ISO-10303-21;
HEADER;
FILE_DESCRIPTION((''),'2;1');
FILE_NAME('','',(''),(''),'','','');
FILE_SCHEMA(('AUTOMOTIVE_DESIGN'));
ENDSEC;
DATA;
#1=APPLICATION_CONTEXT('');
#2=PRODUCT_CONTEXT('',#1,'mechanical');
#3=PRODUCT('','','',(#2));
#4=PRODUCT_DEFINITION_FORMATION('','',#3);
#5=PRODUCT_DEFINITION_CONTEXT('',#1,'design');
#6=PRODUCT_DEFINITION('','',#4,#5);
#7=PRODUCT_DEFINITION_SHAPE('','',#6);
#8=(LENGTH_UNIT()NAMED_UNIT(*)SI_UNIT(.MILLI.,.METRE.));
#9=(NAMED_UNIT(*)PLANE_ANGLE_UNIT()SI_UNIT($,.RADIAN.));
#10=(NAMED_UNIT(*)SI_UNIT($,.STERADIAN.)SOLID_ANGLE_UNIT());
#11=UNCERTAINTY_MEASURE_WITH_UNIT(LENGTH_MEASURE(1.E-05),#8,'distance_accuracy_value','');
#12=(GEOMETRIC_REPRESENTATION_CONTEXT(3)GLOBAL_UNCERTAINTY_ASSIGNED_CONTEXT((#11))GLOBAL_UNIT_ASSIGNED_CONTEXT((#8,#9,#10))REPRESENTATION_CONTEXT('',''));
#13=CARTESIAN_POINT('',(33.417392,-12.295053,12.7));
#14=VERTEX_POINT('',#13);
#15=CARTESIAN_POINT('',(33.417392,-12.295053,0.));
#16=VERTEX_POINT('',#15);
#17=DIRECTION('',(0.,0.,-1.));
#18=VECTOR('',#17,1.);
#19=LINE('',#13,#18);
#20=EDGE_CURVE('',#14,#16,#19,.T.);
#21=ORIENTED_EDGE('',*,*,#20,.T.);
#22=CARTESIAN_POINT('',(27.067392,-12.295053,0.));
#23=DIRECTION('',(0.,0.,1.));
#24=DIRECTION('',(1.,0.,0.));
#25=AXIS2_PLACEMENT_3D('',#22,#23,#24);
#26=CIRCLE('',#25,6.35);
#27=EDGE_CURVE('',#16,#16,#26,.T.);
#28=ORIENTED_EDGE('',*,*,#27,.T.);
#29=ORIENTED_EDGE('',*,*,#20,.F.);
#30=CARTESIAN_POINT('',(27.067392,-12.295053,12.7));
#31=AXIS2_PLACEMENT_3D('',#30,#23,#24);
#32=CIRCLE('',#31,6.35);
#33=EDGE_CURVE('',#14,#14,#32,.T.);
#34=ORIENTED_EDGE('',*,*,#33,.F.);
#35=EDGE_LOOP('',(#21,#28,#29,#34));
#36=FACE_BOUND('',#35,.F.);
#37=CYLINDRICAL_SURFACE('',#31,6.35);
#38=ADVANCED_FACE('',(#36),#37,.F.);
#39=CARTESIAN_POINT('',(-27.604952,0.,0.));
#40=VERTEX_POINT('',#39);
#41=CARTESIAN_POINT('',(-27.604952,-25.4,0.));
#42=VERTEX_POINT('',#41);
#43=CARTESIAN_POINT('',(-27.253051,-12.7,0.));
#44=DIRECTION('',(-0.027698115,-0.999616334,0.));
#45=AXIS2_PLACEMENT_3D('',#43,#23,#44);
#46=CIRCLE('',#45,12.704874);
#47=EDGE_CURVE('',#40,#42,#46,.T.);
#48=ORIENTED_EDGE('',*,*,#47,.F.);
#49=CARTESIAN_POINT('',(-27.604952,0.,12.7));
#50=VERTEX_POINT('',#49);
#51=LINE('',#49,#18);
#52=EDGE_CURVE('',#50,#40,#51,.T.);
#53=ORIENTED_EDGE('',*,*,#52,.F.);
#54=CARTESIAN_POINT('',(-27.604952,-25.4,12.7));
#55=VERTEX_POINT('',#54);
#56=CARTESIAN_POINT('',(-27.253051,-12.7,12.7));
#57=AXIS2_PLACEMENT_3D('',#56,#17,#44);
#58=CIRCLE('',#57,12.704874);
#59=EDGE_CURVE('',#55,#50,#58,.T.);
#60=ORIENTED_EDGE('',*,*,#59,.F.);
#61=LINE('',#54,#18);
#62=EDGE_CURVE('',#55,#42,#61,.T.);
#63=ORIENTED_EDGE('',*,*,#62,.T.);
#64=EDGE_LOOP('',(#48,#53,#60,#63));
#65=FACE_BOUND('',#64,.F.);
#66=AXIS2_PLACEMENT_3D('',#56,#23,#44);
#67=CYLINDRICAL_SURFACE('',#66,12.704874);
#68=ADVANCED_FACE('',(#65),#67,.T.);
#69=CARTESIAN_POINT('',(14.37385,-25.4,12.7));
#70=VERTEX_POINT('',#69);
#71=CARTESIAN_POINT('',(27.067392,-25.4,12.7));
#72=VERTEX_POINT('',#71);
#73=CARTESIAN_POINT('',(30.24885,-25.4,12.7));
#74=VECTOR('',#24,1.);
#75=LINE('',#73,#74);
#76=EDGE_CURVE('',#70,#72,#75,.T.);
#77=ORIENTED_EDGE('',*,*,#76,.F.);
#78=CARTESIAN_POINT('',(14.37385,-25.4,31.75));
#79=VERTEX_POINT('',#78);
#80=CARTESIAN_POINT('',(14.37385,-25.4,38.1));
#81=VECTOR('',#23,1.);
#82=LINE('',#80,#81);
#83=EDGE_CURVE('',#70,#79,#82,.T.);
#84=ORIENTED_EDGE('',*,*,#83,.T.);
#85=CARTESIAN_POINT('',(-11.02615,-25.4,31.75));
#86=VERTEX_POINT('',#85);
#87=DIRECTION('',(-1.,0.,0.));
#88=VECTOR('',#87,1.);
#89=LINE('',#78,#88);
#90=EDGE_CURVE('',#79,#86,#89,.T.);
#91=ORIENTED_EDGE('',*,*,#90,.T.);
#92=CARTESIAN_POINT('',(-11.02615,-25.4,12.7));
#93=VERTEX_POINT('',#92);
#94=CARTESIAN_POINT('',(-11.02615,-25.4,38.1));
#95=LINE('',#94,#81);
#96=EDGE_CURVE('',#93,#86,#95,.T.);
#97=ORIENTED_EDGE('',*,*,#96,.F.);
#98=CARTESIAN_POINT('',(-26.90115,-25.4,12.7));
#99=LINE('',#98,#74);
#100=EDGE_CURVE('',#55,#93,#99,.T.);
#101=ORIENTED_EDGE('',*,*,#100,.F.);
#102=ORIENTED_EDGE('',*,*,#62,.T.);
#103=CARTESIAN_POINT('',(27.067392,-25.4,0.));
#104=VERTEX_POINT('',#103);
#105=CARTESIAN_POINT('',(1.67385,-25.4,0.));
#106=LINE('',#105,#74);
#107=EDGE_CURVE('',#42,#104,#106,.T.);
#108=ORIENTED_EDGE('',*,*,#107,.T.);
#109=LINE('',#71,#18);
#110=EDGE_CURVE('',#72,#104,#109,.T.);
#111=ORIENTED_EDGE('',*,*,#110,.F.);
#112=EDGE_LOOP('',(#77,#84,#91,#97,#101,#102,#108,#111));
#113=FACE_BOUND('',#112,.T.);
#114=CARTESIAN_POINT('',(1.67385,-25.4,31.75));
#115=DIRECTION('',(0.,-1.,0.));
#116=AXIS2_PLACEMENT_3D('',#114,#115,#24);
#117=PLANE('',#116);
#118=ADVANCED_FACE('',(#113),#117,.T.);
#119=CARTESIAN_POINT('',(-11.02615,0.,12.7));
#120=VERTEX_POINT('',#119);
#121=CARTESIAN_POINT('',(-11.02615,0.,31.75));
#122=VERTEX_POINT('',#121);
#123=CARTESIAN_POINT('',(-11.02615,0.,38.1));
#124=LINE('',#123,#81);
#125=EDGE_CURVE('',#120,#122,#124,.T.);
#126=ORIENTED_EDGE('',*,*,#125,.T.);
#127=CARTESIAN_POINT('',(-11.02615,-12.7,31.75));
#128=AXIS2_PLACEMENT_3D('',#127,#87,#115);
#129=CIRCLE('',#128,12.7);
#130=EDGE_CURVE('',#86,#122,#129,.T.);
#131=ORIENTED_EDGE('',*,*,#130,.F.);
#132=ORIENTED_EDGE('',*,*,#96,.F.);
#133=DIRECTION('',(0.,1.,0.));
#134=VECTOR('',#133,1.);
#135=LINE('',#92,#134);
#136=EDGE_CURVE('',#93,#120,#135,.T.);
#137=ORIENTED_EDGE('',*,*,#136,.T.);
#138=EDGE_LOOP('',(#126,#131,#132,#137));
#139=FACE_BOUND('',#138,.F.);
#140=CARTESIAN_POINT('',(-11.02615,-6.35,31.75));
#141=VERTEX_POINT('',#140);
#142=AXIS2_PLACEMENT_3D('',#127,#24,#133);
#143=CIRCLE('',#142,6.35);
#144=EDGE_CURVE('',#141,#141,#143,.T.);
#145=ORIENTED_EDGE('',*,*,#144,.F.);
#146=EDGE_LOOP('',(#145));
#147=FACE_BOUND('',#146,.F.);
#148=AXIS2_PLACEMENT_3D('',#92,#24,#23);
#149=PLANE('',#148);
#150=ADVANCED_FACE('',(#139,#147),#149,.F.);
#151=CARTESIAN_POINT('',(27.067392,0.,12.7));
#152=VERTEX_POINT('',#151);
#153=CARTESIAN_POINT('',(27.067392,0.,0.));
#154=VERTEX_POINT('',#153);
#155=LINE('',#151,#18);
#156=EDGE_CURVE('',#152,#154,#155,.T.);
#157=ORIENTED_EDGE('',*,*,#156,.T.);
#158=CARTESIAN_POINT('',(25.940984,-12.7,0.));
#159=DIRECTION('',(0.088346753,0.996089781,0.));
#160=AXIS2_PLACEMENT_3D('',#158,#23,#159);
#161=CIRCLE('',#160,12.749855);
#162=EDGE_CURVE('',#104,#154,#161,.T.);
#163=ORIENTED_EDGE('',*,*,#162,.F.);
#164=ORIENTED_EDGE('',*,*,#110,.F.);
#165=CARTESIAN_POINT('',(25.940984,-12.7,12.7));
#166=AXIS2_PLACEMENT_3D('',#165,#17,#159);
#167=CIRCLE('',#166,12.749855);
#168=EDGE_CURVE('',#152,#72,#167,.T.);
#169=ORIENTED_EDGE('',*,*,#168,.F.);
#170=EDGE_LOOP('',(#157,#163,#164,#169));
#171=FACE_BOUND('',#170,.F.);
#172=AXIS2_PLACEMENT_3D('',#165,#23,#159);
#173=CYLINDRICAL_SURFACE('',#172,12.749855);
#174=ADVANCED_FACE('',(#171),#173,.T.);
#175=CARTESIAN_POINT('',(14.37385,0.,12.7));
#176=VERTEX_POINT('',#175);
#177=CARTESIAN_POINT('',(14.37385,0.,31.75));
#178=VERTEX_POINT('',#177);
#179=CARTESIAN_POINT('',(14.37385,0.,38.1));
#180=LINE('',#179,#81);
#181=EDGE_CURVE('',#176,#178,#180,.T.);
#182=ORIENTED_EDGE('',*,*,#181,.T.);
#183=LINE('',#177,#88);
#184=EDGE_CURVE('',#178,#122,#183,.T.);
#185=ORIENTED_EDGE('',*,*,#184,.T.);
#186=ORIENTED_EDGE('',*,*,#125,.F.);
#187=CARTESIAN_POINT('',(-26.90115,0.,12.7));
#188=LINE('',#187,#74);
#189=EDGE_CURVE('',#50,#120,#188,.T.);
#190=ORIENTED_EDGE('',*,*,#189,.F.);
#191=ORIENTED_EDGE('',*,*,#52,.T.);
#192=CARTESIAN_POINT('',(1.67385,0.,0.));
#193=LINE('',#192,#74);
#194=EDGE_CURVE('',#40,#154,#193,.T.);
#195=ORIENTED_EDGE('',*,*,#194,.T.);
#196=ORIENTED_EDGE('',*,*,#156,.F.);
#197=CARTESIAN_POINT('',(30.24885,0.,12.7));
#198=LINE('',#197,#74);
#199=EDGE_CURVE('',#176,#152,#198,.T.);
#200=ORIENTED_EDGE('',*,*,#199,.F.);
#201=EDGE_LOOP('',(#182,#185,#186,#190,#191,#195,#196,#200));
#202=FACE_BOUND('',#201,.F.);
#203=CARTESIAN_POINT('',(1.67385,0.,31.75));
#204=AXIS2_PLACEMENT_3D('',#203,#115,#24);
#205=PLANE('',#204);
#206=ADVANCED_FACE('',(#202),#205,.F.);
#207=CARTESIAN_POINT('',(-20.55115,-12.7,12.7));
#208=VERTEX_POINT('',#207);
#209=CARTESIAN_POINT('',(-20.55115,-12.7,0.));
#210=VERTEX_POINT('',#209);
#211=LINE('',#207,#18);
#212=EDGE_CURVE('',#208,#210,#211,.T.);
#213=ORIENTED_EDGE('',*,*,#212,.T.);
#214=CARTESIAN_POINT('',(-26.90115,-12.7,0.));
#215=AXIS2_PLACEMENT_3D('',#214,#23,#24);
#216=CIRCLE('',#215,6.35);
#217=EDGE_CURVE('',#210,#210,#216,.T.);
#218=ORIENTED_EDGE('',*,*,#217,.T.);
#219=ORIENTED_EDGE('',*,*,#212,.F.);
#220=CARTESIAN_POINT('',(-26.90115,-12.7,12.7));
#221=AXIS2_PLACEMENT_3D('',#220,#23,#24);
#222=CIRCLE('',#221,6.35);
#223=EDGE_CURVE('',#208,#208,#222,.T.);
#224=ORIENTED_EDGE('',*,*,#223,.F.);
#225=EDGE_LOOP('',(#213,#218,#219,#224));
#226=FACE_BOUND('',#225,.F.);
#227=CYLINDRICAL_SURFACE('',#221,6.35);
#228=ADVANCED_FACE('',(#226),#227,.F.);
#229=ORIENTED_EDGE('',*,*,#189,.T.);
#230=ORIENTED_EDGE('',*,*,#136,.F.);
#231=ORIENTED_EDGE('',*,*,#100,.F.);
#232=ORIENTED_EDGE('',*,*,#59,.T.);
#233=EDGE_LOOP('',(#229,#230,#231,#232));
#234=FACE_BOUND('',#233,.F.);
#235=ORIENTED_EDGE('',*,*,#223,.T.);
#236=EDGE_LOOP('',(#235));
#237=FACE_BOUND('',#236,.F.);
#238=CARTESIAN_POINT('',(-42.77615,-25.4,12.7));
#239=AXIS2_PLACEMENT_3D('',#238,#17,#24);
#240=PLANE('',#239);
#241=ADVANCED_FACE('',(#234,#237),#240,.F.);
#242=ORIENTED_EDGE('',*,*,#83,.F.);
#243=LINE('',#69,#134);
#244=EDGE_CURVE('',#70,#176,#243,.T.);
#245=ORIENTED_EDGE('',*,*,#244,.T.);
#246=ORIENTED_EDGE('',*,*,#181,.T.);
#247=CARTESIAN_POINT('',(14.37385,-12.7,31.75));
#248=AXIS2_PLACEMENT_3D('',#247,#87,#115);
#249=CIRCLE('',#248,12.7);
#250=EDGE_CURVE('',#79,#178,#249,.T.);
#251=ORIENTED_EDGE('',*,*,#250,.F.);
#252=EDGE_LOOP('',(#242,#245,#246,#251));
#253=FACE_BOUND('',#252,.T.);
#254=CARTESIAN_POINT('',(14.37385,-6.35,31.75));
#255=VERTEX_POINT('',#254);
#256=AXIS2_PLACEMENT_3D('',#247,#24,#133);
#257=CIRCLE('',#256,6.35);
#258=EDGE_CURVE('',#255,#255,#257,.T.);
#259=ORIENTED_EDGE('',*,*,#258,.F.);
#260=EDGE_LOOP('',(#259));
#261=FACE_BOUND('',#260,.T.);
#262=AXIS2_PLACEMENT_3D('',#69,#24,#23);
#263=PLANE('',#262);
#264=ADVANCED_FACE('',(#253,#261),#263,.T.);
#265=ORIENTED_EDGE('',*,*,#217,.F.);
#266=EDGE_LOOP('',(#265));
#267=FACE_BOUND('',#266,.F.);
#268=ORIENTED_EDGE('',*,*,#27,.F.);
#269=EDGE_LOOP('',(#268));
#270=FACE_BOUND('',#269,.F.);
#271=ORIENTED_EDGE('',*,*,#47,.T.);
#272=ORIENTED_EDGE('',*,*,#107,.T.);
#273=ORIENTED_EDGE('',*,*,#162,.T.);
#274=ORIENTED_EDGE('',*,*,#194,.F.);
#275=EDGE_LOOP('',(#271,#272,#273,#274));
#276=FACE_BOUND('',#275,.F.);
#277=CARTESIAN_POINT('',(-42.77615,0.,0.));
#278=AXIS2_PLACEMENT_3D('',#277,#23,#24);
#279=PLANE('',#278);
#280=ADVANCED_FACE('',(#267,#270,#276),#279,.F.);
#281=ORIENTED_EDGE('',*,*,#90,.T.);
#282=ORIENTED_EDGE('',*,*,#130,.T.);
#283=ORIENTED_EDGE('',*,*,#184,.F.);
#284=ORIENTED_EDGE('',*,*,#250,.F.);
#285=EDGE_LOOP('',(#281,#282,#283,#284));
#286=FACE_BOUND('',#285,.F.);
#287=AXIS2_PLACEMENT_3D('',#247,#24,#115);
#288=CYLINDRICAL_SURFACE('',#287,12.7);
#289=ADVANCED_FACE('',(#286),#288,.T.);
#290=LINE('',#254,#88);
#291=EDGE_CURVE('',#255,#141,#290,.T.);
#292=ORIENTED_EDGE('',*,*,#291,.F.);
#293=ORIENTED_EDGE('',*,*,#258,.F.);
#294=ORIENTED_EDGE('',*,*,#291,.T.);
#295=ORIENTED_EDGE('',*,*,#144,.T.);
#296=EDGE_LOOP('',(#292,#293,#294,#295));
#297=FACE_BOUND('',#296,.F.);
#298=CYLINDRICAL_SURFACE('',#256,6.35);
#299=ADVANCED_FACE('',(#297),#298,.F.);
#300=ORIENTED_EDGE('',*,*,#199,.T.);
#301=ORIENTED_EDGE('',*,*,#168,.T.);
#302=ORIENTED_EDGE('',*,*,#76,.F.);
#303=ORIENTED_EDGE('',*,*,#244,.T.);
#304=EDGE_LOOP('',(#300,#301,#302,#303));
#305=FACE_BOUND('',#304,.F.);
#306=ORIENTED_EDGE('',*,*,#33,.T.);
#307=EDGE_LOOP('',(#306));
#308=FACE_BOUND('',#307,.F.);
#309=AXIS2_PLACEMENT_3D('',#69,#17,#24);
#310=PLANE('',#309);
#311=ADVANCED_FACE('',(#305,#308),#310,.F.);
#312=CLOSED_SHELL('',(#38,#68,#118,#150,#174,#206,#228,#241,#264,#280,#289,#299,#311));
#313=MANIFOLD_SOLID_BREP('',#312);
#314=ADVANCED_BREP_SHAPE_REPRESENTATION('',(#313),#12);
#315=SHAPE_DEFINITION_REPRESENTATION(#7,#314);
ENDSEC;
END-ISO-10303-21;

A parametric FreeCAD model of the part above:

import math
import FreeCAD as App
import Part
import Sketcher

V = App.Vector
Q = App.Units.Quantity

doc = App.newDocument("Part")
body = doc.addObject("PartDesign::Body", "Body")

# Sketch on XZ plane
sketch1 = doc.addObject("Sketcher::SketchObject", "Sketch")
body.addObject(sketch1)
sketch1.AttachmentSupport = (doc.XZ_Plane, [""])
sketch1.MapMode = "FlatFace"
sketch1.addGeometry([
    Part.LineSegment(V(-43, 64, 0), V(-43, 0, 0)),
    Part.LineSegment(V(-43, 0, 0), V(46, 0, 0)),
    Part.LineSegment(V(46, 0, 0), V(46, 64, 0)),
    Part.LineSegment(V(46, 64, 0), V(-43, 64, 0)),
], False)
sketch1.addConstraint([
    Sketcher.Constraint("Coincident", 0, 2, 1, 1),
    Sketcher.Constraint("Coincident", 1, 2, 2, 1),
    Sketcher.Constraint("Coincident", 2, 2, 3, 1),
    Sketcher.Constraint("Coincident", 3, 2, 0, 1),
    Sketcher.Constraint("Vertical", 0),
    Sketcher.Constraint("Horizontal", 1),
    Sketcher.Constraint("Vertical", 2),
    Sketcher.Constraint("Horizontal", 3),
    Sketcher.Constraint("PointOnObject", 0, 2, -1),
    Sketcher.Constraint("DistanceX", 1, 1, 1, 2, Q("3.5 in")),
    Sketcher.Constraint("DistanceY", 0, 2, 0, 1, Q("2.5 in")),
    Sketcher.Constraint("DistanceX", 0, 2, -1, 1, Q("42.77615 mm")),
])
pad1 = doc.addObject("PartDesign::Pad", "Pad")
body.addObject(pad1)
pad1.Profile = sketch1
pad1.Length = Q("1 in")

# Sketch on XZ plane
sketch2 = doc.addObject("Sketcher::SketchObject", "Sketch001")
body.addObject(sketch2)
sketch2.AttachmentSupport = (doc.XZ_Plane, [""])
sketch2.MapMode = "FlatFace"
sketch2.AttachmentOffset = App.Placement(V(0, 0, 1 * 25.4), App.Rotation())
sketch2.addGeometry([
    Part.LineSegment(V(-43, 64, 0), V(-43, 13, 0)),  # 0
    Part.LineSegment(V(-43, 13, 0), V(-11, 13, 0)),  # 1
    Part.LineSegment(V(-11, 13, 0), V(-11, 64, 0)),  # 2
    Part.LineSegment(V(-11, 64, 0), V(-43, 64, 0)),  # 3
    Part.LineSegment(V(14, 64, 0), V(14, 13, 0)),  # 4
    Part.LineSegment(V(14, 13, 0), V(46, 13, 0)),  # 5
    Part.LineSegment(V(46, 13, 0), V(46, 64, 0)),  # 6
    Part.LineSegment(V(46, 64, 0), V(14, 64, 0)),  # 7
], False)
sketch2.addConstraint([
    Sketcher.Constraint("Coincident", 0, 2, 1, 1),
    Sketcher.Constraint("Coincident", 1, 2, 2, 1),
    Sketcher.Constraint("Coincident", 2, 2, 3, 1),
    Sketcher.Constraint("Coincident", 3, 2, 0, 1),
    Sketcher.Constraint("Coincident", 4, 2, 5, 1),
    Sketcher.Constraint("Coincident", 5, 2, 6, 1),
    Sketcher.Constraint("Coincident", 6, 2, 7, 1),
    Sketcher.Constraint("Coincident", 7, 2, 4, 1),
    Sketcher.Constraint("Vertical", 0),
    Sketcher.Constraint("Horizontal", 1),
    Sketcher.Constraint("Vertical", 2),
    Sketcher.Constraint("Horizontal", 3),
    Sketcher.Constraint("Vertical", 4),
    Sketcher.Constraint("Horizontal", 5),
    Sketcher.Constraint("Vertical", 6),
    Sketcher.Constraint("Horizontal", 7),
    Sketcher.Constraint("Horizontal", 1, 2, 4, 2),
    Sketcher.Constraint("Horizontal", 3, 2, 6, 2),
    Sketcher.Constraint("Equal", 3, 5),
    Sketcher.Constraint("DistanceY", 0, 2, 0, 1, Q("2 in")),
    Sketcher.Constraint("DistanceX", 1, 2, 4, 2, Q("1 in")),
    Sketcher.Constraint("DistanceX", 1, 1, 1, 2, Q("1.25 in")),
    Sketcher.Constraint("DistanceY", -1, 1, 0, 2, Q("0.5 in")),
    Sketcher.Constraint("DistanceX", 0, 2, -1, 1, Q("42.77615 mm")),
])
pocket1 = doc.addObject("PartDesign::Pocket", "Pocket")
body.addObject(pocket1)
pocket1.Profile = sketch2
pocket1.Length = Q("1 in")

# Sketch on YZ plane
sketch3 = doc.addObject("Sketcher::SketchObject", "Sketch002")
body.addObject(sketch3)
sketch3.AttachmentSupport = (doc.YZ_Plane, [""])
sketch3.MapMode = "FlatFace"
sketch3.AttachmentOffset = App.Placement(V(0, 0, 14.37385), App.Rotation())
sketch3.addGeometry([
    Part.ArcOfCircle(Part.Circle(V(-13, 32, 0), V(0, 0, 1), 13), math.radians(0), math.radians(180)),  # 0
    Part.LineSegment(V(0, 32, 0), V(0, 64, 0)),  # 1
    Part.LineSegment(V(0, 64, 0), V(-25, 64, 0)),  # 2
    Part.LineSegment(V(-25, 64, 0), V(-25, 32, 0)),  # 3
    Part.Circle(V(-13, 32, 0), V(0, 0, 1), 6),  # 4
], False)
sketch3.addConstraint([
    Sketcher.Constraint("Tangent", 0, 1, 1, 1),
    Sketcher.Constraint("Coincident", 1, 2, 2, 1),
    Sketcher.Constraint("Coincident", 2, 2, 3, 1),
    Sketcher.Constraint("Tangent", 3, 2, 0, 2),
    Sketcher.Constraint("Vertical", 1),
    Sketcher.Constraint("Horizontal", 2),
    Sketcher.Constraint("Vertical", 3),
    Sketcher.Constraint("Coincident", 4, 3, 0, 3),
    Sketcher.Constraint("PointOnObject", 0, 1, -2),
    Sketcher.Constraint("Diameter", 4, Q("0.5 in")),
    Sketcher.Constraint("Radius", 0, Q("0.5 in")),
    Sketcher.Constraint("DistanceY", 1, 1, 1, 2, Q("1.25 in")),
    Sketcher.Constraint("DistanceY", -1, 1, 1, 2, Q("2.5 in")),
])
pocket2 = doc.addObject("PartDesign::Pocket", "Pocket001")
body.addObject(pocket2)
pocket2.Profile = sketch3
pocket2.Length = Q("1 in")

# Sketch on XY plane
sketch4 = doc.addObject("Sketcher::SketchObject", "Sketch003")
body.addObject(sketch4)
sketch4.AttachmentSupport = (doc.XY_Plane, [""])
sketch4.MapMode = "FlatFace"
sketch4.AttachmentOffset = App.Placement(V(0, 0, 0.5 * 25.4), App.Rotation())
sketch4.addGeometry([
    Part.Circle(V(27, -12, 0), V(0, 0, 1), 6),  # 0
    Part.ArcOfCircle(Part.Circle(V(26, -13, 0), V(0, 0, 1), 13), math.radians(-85), math.radians(85)),  # 1
    Part.LineSegment(V(27, -25, 0), V(46, -25, 0)),  # 2
    Part.LineSegment(V(46, -25, 0), V(46, 0, 0)),  # 3
    Part.LineSegment(V(46, 0, 0), V(27, 0, 0)),  # 4
], False)
sketch4.addConstraint([
    Sketcher.Constraint("Coincident", 1, 1, 2, 1),
    Sketcher.Constraint("Coincident", 2, 2, 3, 1),
    Sketcher.Constraint("Coincident", 3, 2, 4, 1),
    Sketcher.Constraint("Coincident", 4, 2, 1, 2),
    Sketcher.Constraint("Horizontal", 2),
    Sketcher.Constraint("Vertical", 3),
    Sketcher.Constraint("Horizontal", 4),
    Sketcher.Constraint("PointOnObject", 3, 2, -1),
    Sketcher.Constraint("Vertical", 0, 3, 1, 1),
    Sketcher.Constraint("Vertical", 1, 1, 4, 2),
    Sketcher.Constraint("Diameter", 0, Q("0.5 in")),
    Sketcher.Constraint("DistanceY", 3, 1, 3, 2, Q("1 in")),
    Sketcher.Constraint("Radius", 1, Q("12.749855 mm")),
    Sketcher.Constraint("DistanceX", 2, 1, 2, 2, Q("19.056458 mm")),
    Sketcher.Constraint("DistanceX", -1, 1, 2, 2, Q("46.12385 mm")),
    Sketcher.Constraint("DistanceY", 0, 3, -1, 1, Q("12.295053 mm")),
])
pocket3 = doc.addObject("PartDesign::Pocket", "Pocket002")
body.addObject(pocket3)
pocket3.Profile = sketch4
pocket3.Length = Q("1 in")

# Sketch on XY plane
sketch5 = doc.addObject("Sketcher::SketchObject", "Sketch004")
body.addObject(sketch5)
sketch5.AttachmentSupport = (doc.XY_Plane, [""])
sketch5.MapMode = "FlatFace"
sketch5.AttachmentOffset = App.Placement(V(0, 0, 0.5 * 25.4), App.Rotation())
sketch5.addGeometry([
    Part.Circle(V(-27, -13, 0), V(0, 0, 1), 6),  # 0
    Part.ArcOfCircle(Part.Circle(V(-27, -13, 0), V(0, 0, 1), 13), math.radians(92), math.radians(268)),  # 1
    Part.LineSegment(V(-28, 0, 0), V(-43, 0, 0)),  # 2
    Part.LineSegment(V(-43, 0, 0), V(-43, -25, 0)),  # 3
    Part.LineSegment(V(-43, -25, 0), V(-28, -25, 0)),  # 4
], False)
sketch5.addConstraint([
    Sketcher.Constraint("Coincident", 1, 1, 2, 1),
    Sketcher.Constraint("Coincident", 2, 2, 3, 1),
    Sketcher.Constraint("Coincident", 3, 2, 4, 1),
    Sketcher.Constraint("Coincident", 4, 2, 1, 2),
    Sketcher.Constraint("Horizontal", 2),
    Sketcher.Constraint("Vertical", 3),
    Sketcher.Constraint("Horizontal", 4),
    Sketcher.Constraint("PointOnObject", 1, 1, -1),
    Sketcher.Constraint("Horizontal", 0, 3, 1, 3),
    Sketcher.Constraint("Vertical", 1, 1, 4, 2),
    Sketcher.Constraint("Diameter", 0, Q("0.5 in")),
    Sketcher.Constraint("DistanceY", 3, 2, 3, 1, Q("1 in")),
    Sketcher.Constraint("DistanceX", 2, 2, 0, 3, Q("0.625 in")),
    Sketcher.Constraint("Radius", 1, Q("12.704874 mm")),
    Sketcher.Constraint("DistanceX", 1, 3, 0, 3, Q("0.351901 mm")),
    Sketcher.Constraint("DistanceX", 0, 3, -1, 1, Q("26.90115 mm")),
])
pocket4 = doc.addObject("PartDesign::Pocket", "Pocket003")
body.addObject(pocket4)
pocket4.Profile = sketch5
pocket4.Length = Q("1 in")

doc.recompute()
